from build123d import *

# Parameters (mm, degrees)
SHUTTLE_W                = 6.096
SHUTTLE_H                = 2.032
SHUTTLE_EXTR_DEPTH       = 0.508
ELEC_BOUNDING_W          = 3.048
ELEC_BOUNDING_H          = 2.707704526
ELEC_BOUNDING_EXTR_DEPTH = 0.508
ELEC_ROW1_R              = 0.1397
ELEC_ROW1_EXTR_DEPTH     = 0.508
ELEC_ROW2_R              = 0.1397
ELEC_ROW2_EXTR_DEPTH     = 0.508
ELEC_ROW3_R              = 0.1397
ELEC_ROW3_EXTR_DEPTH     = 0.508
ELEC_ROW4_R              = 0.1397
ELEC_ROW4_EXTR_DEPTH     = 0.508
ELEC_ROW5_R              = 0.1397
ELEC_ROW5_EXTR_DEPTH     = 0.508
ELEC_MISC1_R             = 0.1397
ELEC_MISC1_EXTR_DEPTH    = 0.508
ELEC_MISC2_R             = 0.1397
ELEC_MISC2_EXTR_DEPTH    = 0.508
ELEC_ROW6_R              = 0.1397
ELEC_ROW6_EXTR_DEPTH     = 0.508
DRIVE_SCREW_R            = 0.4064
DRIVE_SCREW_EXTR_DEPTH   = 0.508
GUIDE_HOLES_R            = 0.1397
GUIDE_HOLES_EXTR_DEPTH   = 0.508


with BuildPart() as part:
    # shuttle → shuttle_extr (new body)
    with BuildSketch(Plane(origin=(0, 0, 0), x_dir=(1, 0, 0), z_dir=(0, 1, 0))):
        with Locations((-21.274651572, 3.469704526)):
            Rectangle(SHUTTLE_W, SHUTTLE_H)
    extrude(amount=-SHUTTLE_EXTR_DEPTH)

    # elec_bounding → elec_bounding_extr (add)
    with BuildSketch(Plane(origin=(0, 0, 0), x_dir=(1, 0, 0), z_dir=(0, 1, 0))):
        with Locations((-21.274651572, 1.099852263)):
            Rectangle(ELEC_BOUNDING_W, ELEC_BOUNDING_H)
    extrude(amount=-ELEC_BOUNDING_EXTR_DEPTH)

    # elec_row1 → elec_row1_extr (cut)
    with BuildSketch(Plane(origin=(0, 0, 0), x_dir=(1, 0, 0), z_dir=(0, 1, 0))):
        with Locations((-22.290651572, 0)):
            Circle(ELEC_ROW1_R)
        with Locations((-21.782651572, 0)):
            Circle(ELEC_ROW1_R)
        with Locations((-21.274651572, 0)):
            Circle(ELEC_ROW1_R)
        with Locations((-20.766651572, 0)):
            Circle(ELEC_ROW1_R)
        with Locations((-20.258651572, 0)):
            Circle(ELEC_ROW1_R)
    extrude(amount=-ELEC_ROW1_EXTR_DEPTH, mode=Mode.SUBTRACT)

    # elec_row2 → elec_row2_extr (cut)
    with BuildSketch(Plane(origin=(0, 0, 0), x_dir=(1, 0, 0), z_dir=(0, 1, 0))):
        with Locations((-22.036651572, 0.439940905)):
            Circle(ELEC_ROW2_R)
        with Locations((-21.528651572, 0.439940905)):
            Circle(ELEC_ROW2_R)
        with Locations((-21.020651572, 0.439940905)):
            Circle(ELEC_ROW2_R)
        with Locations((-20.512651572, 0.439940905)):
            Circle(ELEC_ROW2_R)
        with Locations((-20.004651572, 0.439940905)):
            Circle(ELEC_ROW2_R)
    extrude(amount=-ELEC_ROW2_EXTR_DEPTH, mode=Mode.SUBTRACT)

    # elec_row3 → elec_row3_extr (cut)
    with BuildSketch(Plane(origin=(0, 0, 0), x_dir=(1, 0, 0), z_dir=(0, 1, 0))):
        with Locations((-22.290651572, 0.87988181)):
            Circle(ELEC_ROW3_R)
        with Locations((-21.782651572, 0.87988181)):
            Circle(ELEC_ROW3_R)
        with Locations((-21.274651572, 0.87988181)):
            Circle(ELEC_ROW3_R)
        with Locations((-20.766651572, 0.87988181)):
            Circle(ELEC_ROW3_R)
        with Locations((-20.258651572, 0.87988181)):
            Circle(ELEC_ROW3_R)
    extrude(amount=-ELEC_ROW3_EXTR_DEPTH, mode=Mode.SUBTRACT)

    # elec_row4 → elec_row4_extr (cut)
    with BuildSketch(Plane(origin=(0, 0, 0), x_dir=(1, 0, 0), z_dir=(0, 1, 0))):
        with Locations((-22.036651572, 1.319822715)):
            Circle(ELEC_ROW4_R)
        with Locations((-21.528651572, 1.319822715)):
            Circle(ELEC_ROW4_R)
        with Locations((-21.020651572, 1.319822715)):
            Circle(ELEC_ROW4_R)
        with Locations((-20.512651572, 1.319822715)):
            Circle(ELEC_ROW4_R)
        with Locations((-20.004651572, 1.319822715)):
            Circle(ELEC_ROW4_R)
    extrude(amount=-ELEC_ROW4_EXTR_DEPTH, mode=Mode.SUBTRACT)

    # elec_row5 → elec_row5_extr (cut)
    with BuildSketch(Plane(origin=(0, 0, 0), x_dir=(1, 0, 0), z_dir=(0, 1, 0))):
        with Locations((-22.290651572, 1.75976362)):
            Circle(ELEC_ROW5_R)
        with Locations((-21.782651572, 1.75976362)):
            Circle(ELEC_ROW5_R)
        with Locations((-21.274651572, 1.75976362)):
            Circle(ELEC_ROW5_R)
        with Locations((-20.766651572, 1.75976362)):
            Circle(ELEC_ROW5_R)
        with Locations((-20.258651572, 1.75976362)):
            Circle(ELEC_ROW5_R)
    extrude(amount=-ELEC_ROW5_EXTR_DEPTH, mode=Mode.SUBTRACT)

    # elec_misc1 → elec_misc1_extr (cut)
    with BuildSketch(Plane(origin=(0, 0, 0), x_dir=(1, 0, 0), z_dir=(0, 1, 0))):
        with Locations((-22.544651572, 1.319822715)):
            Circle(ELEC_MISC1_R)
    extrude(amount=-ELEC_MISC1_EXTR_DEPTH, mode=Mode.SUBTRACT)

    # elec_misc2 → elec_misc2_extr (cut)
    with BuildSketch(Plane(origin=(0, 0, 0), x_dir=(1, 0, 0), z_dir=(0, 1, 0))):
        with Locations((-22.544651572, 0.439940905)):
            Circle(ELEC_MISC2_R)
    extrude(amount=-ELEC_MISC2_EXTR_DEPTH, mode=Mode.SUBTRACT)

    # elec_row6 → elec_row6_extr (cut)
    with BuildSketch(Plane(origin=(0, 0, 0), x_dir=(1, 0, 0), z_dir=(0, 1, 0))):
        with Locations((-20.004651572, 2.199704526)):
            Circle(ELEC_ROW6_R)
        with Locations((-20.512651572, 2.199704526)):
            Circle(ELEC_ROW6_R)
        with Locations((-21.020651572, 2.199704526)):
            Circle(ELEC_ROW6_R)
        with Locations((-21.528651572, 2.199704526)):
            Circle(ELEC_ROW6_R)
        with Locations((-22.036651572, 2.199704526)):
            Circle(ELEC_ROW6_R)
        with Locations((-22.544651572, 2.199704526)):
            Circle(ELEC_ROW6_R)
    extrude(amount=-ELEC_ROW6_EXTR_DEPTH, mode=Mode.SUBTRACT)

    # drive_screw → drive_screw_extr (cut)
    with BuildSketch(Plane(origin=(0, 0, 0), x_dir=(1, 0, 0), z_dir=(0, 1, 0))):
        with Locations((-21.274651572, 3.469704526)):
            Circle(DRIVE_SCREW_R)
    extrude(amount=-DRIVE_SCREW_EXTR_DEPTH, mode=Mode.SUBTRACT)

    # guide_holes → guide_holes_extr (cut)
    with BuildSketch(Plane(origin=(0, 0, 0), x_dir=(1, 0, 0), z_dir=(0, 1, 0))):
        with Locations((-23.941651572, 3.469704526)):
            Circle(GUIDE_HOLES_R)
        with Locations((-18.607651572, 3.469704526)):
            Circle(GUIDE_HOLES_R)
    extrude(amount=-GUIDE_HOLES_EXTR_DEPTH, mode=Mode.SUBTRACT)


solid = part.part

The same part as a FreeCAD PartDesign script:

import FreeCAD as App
import Part
import Sketcher

V = App.Vector
Q = App.Units.Quantity


def add_polygon(sketch, points):
    """Adds a closed chain of lines whose ends are joined by coincident constraints."""
    first, n = sketch.GeometryCount, len(points)
    for a, b in zip(points, points[1:] + points[:1]):
        sketch.addGeometry(Part.LineSegment(App.Vector(*a, 0), App.Vector(*b, 0)), False)
    for i in range(n):
        sketch.addConstraint(Sketcher.Constraint("Coincident", first + i, 2, first + (i + 1) % n, 1))

doc = App.newDocument("Part")
body = doc.addObject("PartDesign::Body", "Body")

# Sketch on XZ plane
sketch1 = body.newObject("Sketcher::SketchObject", "Sketch")
sketch1.AttachmentSupport = (doc.getObject("XZ_Plane"), [""])
sketch1.MapMode = "FlatFace"
add_polygon(sketch1, [(-24.3, -4.5), (-24.3, -2.5), (-18.2, -2.5), (-18.2, -4.5)])  # lines 0-3
sketch1.addConstraint([
    Sketcher.Constraint("Vertical", 0),
    Sketcher.Constraint("Horizontal", 1),
    Sketcher.Constraint("Vertical", 2),
    Sketcher.Constraint("Horizontal", 3),
    Sketcher.Constraint("DistanceX", 1, 1, 1, 2, Q("0.24 in")),
    Sketcher.Constraint("DistanceY", 0, 1, 0, 2, Q("0.08 in")),
    Sketcher.Constraint("DistanceX", 0, 2, -1, 1, Q("24.322652 mm")),
    Sketcher.Constraint("DistanceY", 0, 2, -1, 1, Q("2.453705 mm")),
])
pad1 = body.newObject("PartDesign::Pad", "Pad")
pad1.Profile = sketch1
pad1.Length = Q("0.02 in")

# Sketch on XZ plane
sketch2 = body.newObject("Sketcher::SketchObject", "Sketch001")
sketch2.AttachmentSupport = (doc.getObject("XZ_Plane"), [""])
sketch2.MapMode = "FlatFace"
add_polygon(sketch2, [(-22.8, -2.5), (-22.8, 0.3), (-19.8, 0.3), (-19.8, -2.5)])  # lines 0-3
sketch2.addConstraint([
    Sketcher.Constraint("Vertical", 0),
    Sketcher.Constraint("Horizontal", 1),
    Sketcher.Constraint("Vertical", 2),
    Sketcher.Constraint("Horizontal", 3),
    Sketcher.Constraint("DistanceX", 1, 1, 1, 2, Q("0.12 in")),
    Sketcher.Constraint("DistanceY", -1, 1, 0, 2, Q("0.01 in")),
    Sketcher.Constraint("DistanceY", 0, 1, 0, 2, Q("2.707705 mm")),
    Sketcher.Constraint("DistanceX", 0, 2, -1, 1, Q("22.798652 mm")),
])
pad2 = body.newObject("PartDesign::Pad", "Pad001")
pad2.Profile = sketch2
pad2.Length = Q("0.02 in")

# Sketch on XZ plane
sketch3 = body.newObject("Sketcher::SketchObject", "Sketch002")
sketch3.AttachmentSupport = (doc.getObject("XZ_Plane"), [""])
sketch3.MapMode = "FlatFace"
sketch3.addGeometry([
    Part.Circle(V(-22.29, 0, 0), V(0, 0, 1), 0.14),  # 0
    Part.Circle(V(-21.78, 0, 0), V(0, 0, 1), 0.14),  # 1
    Part.Circle(V(-21.27, 0, 0), V(0, 0, 1), 0.14),  # 2
    Part.Circle(V(-20.77, 0, 0), V(0, 0, 1), 0.14),  # 3
    Part.Circle(V(-20.26, 0, 0), V(0, 0, 1), 0.14),  # 4
], False)
sketch3.addConstraint([
    Sketcher.Constraint("Equal", 0, 1),
    Sketcher.Constraint("Equal", 1, 2),
    Sketcher.Constraint("Equal", 2, 3),
    Sketcher.Constraint("Equal", 3, 4),
    Sketcher.Constraint("PointOnObject", 0, 3, -1),
    Sketcher.Constraint("PointOnObject", 1, 3, -1),
    Sketcher.Constraint("PointOnObject", 2, 3, -1),
    Sketcher.Constraint("PointOnObject", 3, 3, -1),
    Sketcher.Constraint("PointOnObject", 4, 3, -1),
    Sketcher.Constraint("Diameter", 0, Q("0.011 in")),
    Sketcher.Constraint("DistanceX", 0, 3, 1, 3, Q("0.02 in")),
    Sketcher.Constraint("DistanceX", 1, 3, 2, 3, Q("0.02 in")),
    Sketcher.Constraint("DistanceX", 2, 3, 3, 3, Q("0.02 in")),
    Sketcher.Constraint("DistanceX", 3, 3, 4, 3, Q("0.02 in")),
    Sketcher.Constraint("DistanceX", 0, 3, -1, 1, Q("22.290652 mm")),
])
pocket1 = body.newObject("PartDesign::Pocket", "Pocket")
pocket1.Profile = sketch3
pocket1.Length = Q("0.02 in")
pocket1.Reversed = True

# Sketch on XZ plane
sketch4 = body.newObject("Sketcher::SketchObject", "Sketch003")
sketch4.AttachmentSupport = (doc.getObject("XZ_Plane"), [""])
sketch4.MapMode = "FlatFace"
sketch4.addGeometry([
    Part.Circle(V(-22.04, -0.44, 0), V(0, 0, 1), 0.14),  # 0
    Part.Circle(V(-21.53, -0.44, 0), V(0, 0, 1), 0.14),  # 1
    Part.Circle(V(-21.02, -0.44, 0), V(0, 0, 1), 0.14),  # 2
    Part.Circle(V(-20.51, -0.44, 0), V(0, 0, 1), 0.14),  # 3
    Part.Circle(V(-20, -0.44, 0), V(0, 0, 1), 0.14),  # 4
], False)
sketch4.addConstraint([
    Sketcher.Constraint("Equal", 0, 1),
    Sketcher.Constraint("Equal", 1, 2),
    Sketcher.Constraint("Equal", 2, 3),
    Sketcher.Constraint("Equal", 3, 4),
    Sketcher.Constraint("Horizontal", 0, 3, 1, 3),
    Sketcher.Constraint("Horizontal", 1, 3, 2, 3),
    Sketcher.Constraint("Horizontal", 2, 3, 3, 3),
    Sketcher.Constraint("Horizontal", 3, 3, 4, 3),
    Sketcher.Constraint("Diameter", 0, Q("0.011 in")),
    Sketcher.Constraint("DistanceX", 0, 3, 1, 3, Q("0.02 in")),
    Sketcher.Constraint("DistanceX", 1, 3, 2, 3, Q("0.02 in")),
    Sketcher.Constraint("DistanceX", 2, 3, 3, 3, Q("0.02 in")),
    Sketcher.Constraint("DistanceX", 3, 3, 4, 3, Q("0.02 in")),
    Sketcher.Constraint("DistanceX", 0, 3, -1, 1, Q("22.036652 mm")),
    Sketcher.Constraint("DistanceY", 0, 3, -1, 1, Q("0.439941 mm")),
])
pocket2 = body.newObject("PartDesign::Pocket", "Pocket001")
pocket2.Profile = sketch4
pocket2.Length = Q("0.02 in")
pocket2.Reversed = True

# Sketch on XZ plane
sketch5 = body.newObject("Sketcher::SketchObject", "Sketch004")
sketch5.AttachmentSupport = (doc.getObject("XZ_Plane"), [""])
sketch5.MapMode = "FlatFace"
sketch5.addGeometry([
    Part.Circle(V(-22.29, -0.88, 0), V(0, 0, 1), 0.14),  # 0
    Part.Circle(V(-21.78, -0.88, 0), V(0, 0, 1), 0.14),  # 1
    Part.Circle(V(-21.27, -0.88, 0), V(0, 0, 1), 0.14),  # 2
    Part.Circle(V(-20.77, -0.88, 0), V(0, 0, 1), 0.14),  # 3
    Part.Circle(V(-20.26, -0.88, 0), V(0, 0, 1), 0.14),  # 4
], False)
sketch5.addConstraint([
    Sketcher.Constraint("Equal", 0, 1),
    Sketcher.Constraint("Equal", 1, 2),
    Sketcher.Constraint("Equal", 2, 3),
    Sketcher.Constraint("Equal", 3, 4),
    Sketcher.Constraint("Horizontal", 0, 3, 1, 3),
    Sketcher.Constraint("Horizontal", 1, 3, 2, 3),
    Sketcher.Constraint("Horizontal", 2, 3, 3, 3),
    Sketcher.Constraint("Horizontal", 3, 3, 4, 3),
    Sketcher.Constraint("Diameter", 0, Q("0.011 in")),
    Sketcher.Constraint("DistanceX", 0, 3, 1, 3, Q("0.02 in")),
    Sketcher.Constraint("DistanceX", 1, 3, 2, 3, Q("0.02 in")),
    Sketcher.Constraint("DistanceX", 2, 3, 3, 3, Q("0.02 in")),
    Sketcher.Constraint("DistanceX", 3, 3, 4, 3, Q("0.02 in")),
    Sketcher.Constraint("DistanceX", 0, 3, -1, 1, Q("22.290652 mm")),
    Sketcher.Constraint("DistanceY", 0, 3, -1, 1, Q("0.879882 mm")),
])
pocket3 = body.newObject("PartDesign::Pocket", "Pocket002")
pocket3.Profile = sketch5
pocket3.Length = Q("0.02 in")
pocket3.Reversed = True

# Sketch on XZ plane
sketch6 = body.newObject("Sketcher::SketchObject", "Sketch005")
sketch6.AttachmentSupport = (doc.getObject("XZ_Plane"), [""])
sketch6.MapMode = "FlatFace"
sketch6.addGeometry([
    Part.Circle(V(-22.04, -1.32, 0), V(0, 0, 1), 0.14),  # 0
    Part.Circle(V(-21.53, -1.32, 0), V(0, 0, 1), 0.14),  # 1
    Part.Circle(V(-21.02, -1.32, 0), V(0, 0, 1), 0.14),  # 2
    Part.Circle(V(-20.51, -1.32, 0), V(0, 0, 1), 0.14),  # 3
    Part.Circle(V(-20, -1.32, 0), V(0, 0, 1), 0.14),  # 4
], False)
sketch6.addConstraint([
    Sketcher.Constraint("Equal", 0, 1),
    Sketcher.Constraint("Equal", 1, 2),
    Sketcher.Constraint("Equal", 2, 3),
    Sketcher.Constraint("Equal", 3, 4),
    Sketcher.Constraint("Horizontal", 0, 3, 1, 3),
    Sketcher.Constraint("Horizontal", 1, 3, 2, 3),
    Sketcher.Constraint("Horizontal", 2, 3, 3, 3),
    Sketcher.Constraint("Horizontal", 3, 3, 4, 3),
    Sketcher.Constraint("Diameter", 0, Q("0.011 in")),
    Sketcher.Constraint("DistanceX", 0, 3, 1, 3, Q("0.02 in")),
    Sketcher.Constraint("DistanceX", 1, 3, 2, 3, Q("0.02 in")),
    Sketcher.Constraint("DistanceX", 2, 3, 3, 3, Q("0.02 in")),
    Sketcher.Constraint("DistanceX", 3, 3, 4, 3, Q("0.02 in")),
    Sketcher.Constraint("DistanceX", 0, 3, -1, 1, Q("22.036652 mm")),
    Sketcher.Constraint("DistanceY", 0, 3, -1, 1, Q("1.319823 mm")),
])
pocket4 = body.newObject("PartDesign::Pocket", "Pocket003")
pocket4.Profile = sketch6
pocket4.Length = Q("0.02 in")
pocket4.Reversed = True

# Sketch on XZ plane
sketch7 = body.newObject("Sketcher::SketchObject", "Sketch006")
sketch7.AttachmentSupport = (doc.getObject("XZ_Plane"), [""])
sketch7.MapMode = "FlatFace"
sketch7.addGeometry([
    Part.Circle(V(-22.29, -1.76, 0), V(0, 0, 1), 0.14),  # 0
    Part.Circle(V(-21.78, -1.76, 0), V(0, 0, 1), 0.14),  # 1
    Part.Circle(V(-21.27, -1.76, 0), V(0, 0, 1), 0.14),  # 2
    Part.Circle(V(-20.77, -1.76, 0), V(0, 0, 1), 0.14),  # 3
    Part.Circle(V(-20.26, -1.76, 0), V(0, 0, 1), 0.14),  # 4
], False)
sketch7.addConstraint([
    Sketcher.Constraint("Equal", 0, 1),
    Sketcher.Constraint("Equal", 1, 2),
    Sketcher.Constraint("Equal", 2, 3),
    Sketcher.Constraint("Equal", 3, 4),
    Sketcher.Constraint("Horizontal", 0, 3, 1, 3),
    Sketcher.Constraint("Horizontal", 1, 3, 2, 3),
    Sketcher.Constraint("Horizontal", 2, 3, 3, 3),
    Sketcher.Constraint("Horizontal", 3, 3, 4, 3),
    Sketcher.Constraint("Diameter", 0, Q("0.011 in")),
    Sketcher.Constraint("DistanceX", 0, 3, 1, 3, Q("0.02 in")),
    Sketcher.Constraint("DistanceX", 1, 3, 2, 3, Q("0.02 in")),
    Sketcher.Constraint("DistanceX", 2, 3, 3, 3, Q("0.02 in")),
    Sketcher.Constraint("DistanceX", 3, 3, 4, 3, Q("0.02 in")),
    Sketcher.Constraint("DistanceX", 0, 3, -1, 1, Q("22.290652 mm")),
    Sketcher.Constraint("DistanceY", 0, 3, -1, 1, Q("1.759764 mm")),
])
pocket5 = body.newObject("PartDesign::Pocket", "Pocket004")
pocket5.Profile = sketch7
pocket5.Length = Q("0.02 in")
pocket5.Reversed = True

# Sketch on XZ plane
sketch8 = body.newObject("Sketcher::SketchObject", "Sketch007")
sketch8.AttachmentSupport = (doc.getObject("XZ_Plane"), [""])
sketch8.MapMode = "FlatFace"
sketch8.addGeometry(Part.Circle(V(-22.54, -1.32, 0), V(0, 0, 1), 0.14), False)
sketch8.addConstraint([
    Sketcher.Constraint("Diameter", 0, Q("0.011 in")),
    Sketcher.Constraint("DistanceX", 0, 3, -1, 1, Q("22.544652 mm")),
    Sketcher.Constraint("DistanceY", 0, 3, -1, 1, Q("1.319823 mm")),
])
pocket6 = body.newObject("PartDesign::Pocket", "Pocket005")
pocket6.Profile = sketch8
pocket6.Length = Q("0.02 in")
pocket6.Reversed = True

# Sketch on XZ plane
sketch9 = body.newObject("Sketcher::SketchObject", "Sketch008")
sketch9.AttachmentSupport = (doc.getObject("XZ_Plane"), [""])
sketch9.MapMode = "FlatFace"
sketch9.addGeometry(Part.Circle(V(-22.54, -0.44, 0), V(0, 0, 1), 0.14), False)
sketch9.addConstraint([
    Sketcher.Constraint("Diameter", 0, Q("0.011 in")),
    Sketcher.Constraint("DistanceX", 0, 3, -1, 1, Q("22.544652 mm")),
    Sketcher.Constraint("DistanceY", 0, 3, -1, 1, Q("0.439941 mm")),
])
pocket7 = body.newObject("PartDesign::Pocket", "Pocket006")
pocket7.Profile = sketch9
pocket7.Length = Q("0.02 in")
pocket7.Reversed = True

# Sketch on XZ plane
sketch10 = body.newObject("Sketcher::SketchObject", "Sketch009")
sketch10.AttachmentSupport = (doc.getObject("XZ_Plane"), [""])
sketch10.MapMode = "FlatFace"
sketch10.addGeometry([
    Part.Circle(V(-20, -2.2, 0), V(0, 0, 1), 0.14),  # 0
    Part.Circle(V(-20.51, -2.2, 0), V(0, 0, 1), 0.14),  # 1
    Part.Circle(V(-21.02, -2.2, 0), V(0, 0, 1), 0.14),  # 2
    Part.Circle(V(-21.53, -2.2, 0), V(0, 0, 1), 0.14),  # 3
    Part.Circle(V(-22.04, -2.2, 0), V(0, 0, 1), 0.14),  # 4
    Part.Circle(V(-22.54, -2.2, 0), V(0, 0, 1), 0.14),  # 5
], False)
sketch10.addConstraint([
    Sketcher.Constraint("Equal", 0, 1),
    Sketcher.Constraint("Equal", 1, 2),
    Sketcher.Constraint("Equal", 2, 3),
    Sketcher.Constraint("Equal", 3, 4),
    Sketcher.Constraint("Equal", 4, 5),
    Sketcher.Constraint("Horizontal", 0, 3, 1, 3),
    Sketcher.Constraint("Horizontal", 1, 3, 2, 3),
    Sketcher.Constraint("Horizontal", 2, 3, 3, 3),
    Sketcher.Constraint("Horizontal", 3, 3, 4, 3),
    Sketcher.Constraint("Horizontal", 4, 3, 5, 3),
    Sketcher.Constraint("Diameter", 0, Q("0.011 in")),
    Sketcher.Constraint("DistanceX", 5, 3, 0, 3, Q("0.1 in")),
    Sketcher.Constraint("DistanceX", 1, 3, 0, 3, Q("0.02 in")),
    Sketcher.Constraint("DistanceX", 2, 3, 1, 3, Q("0.02 in")),
    Sketcher.Constraint("DistanceX", 3, 3, 2, 3, Q("0.02 in")),
    Sketcher.Constraint("DistanceX", 4, 3, 3, 3, Q("0.02 in")),
    Sketcher.Constraint("DistanceX", 0, 3, -1, 1, Q("20.004652 mm")),
    Sketcher.Constraint("DistanceY", 0, 3, -1, 1, Q("2.199705 mm")),
])
pocket8 = body.newObject("PartDesign::Pocket", "Pocket007")
pocket8.Profile = sketch10
pocket8.Length = Q("0.02 in")
pocket8.Reversed = True

# Sketch on XZ plane
sketch11 = body.newObject("Sketcher::SketchObject", "Sketch010")
sketch11.AttachmentSupport = (doc.getObject("XZ_Plane"), [""])
sketch11.MapMode = "FlatFace"
sketch11.addGeometry(Part.Circle(V(-21.27, -3.47, 0), V(0, 0, 1), 0.41), False)
sketch11.addConstraint([
    Sketcher.Constraint("Diameter", 0, Q("0.032 in")),
    Sketcher.Constraint("DistanceX", 0, 3, -1, 1, Q("21.274652 mm")),
    Sketcher.Constraint("DistanceY", 0, 3, -1, 1, Q("3.469705 mm")),
])
pocket9 = body.newObject("PartDesign::Pocket", "Pocket008")
pocket9.Profile = sketch11
pocket9.Length = Q("0.02 in")
pocket9.Reversed = True

# Sketch on XZ plane
sketch12 = body.newObject("Sketcher::SketchObject", "Sketch011")
sketch12.AttachmentSupport = (doc.getObject("XZ_Plane"), [""])
sketch12.MapMode = "FlatFace"
sketch12.addGeometry([
    Part.Circle(V(-23.94, -3.47, 0), V(0, 0, 1), 0.14),
    Part.Circle(V(-18.61, -3.47, 0), V(0, 0, 1), 0.14),
], False)
sketch12.addConstraint([
    Sketcher.Constraint("Equal", 0, 1),
    Sketcher.Constraint("Horizontal", 0, 3, 1, 3),
    Sketcher.Constraint("Diameter", 0, Q("0.011 in")),
    Sketcher.Constraint("DistanceX", 0, 3, 1, 3, Q("0.21 in")),
    Sketcher.Constraint("DistanceX", 0, 3, -1, 1, Q("23.941652 mm")),
    Sketcher.Constraint("DistanceY", 0, 3, -1, 1, Q("3.469705 mm")),
])
pocket10 = body.newObject("PartDesign::Pocket", "Pocket009")
pocket10.Profile = sketch12
pocket10.Length = Q("0.02 in")
pocket10.Reversed = True

doc.recompute()
